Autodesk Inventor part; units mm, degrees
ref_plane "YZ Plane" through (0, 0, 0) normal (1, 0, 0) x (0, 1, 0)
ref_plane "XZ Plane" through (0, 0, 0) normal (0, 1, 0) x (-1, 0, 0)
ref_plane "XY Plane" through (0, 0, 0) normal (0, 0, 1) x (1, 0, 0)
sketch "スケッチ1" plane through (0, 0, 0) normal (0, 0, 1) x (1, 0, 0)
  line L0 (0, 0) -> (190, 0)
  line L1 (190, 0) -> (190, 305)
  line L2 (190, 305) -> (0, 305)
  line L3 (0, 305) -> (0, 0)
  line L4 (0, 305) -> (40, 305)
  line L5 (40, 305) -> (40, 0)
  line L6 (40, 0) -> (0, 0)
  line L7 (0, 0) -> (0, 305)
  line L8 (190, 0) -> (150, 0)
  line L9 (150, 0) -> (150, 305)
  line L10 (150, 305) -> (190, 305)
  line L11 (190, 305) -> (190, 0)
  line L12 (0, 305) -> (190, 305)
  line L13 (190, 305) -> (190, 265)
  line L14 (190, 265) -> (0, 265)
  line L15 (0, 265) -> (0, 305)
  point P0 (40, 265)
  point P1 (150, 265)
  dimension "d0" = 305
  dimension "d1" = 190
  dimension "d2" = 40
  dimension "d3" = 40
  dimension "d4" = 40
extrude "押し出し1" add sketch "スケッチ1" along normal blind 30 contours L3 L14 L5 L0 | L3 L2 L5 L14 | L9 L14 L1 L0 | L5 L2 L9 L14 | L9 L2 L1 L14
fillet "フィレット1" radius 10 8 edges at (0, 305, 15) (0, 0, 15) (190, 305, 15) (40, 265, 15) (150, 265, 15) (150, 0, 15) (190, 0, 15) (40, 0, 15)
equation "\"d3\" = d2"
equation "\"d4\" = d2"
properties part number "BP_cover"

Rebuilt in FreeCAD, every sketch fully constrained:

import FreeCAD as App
import Part
import Sketcher

V = App.Vector


def edges_at(feature, points):
    """Names of the edges that pass closest to the given points."""
    edges = feature.Shape.Edges
    near = lambda p: min(range(len(edges)), key=lambda i: edges[i].distToShape(Part.Vertex(*p))[0])
    return sorted({f"Edge{near(p) + 1}" for p in points})

doc = App.newDocument("Part")
body = doc.addObject("PartDesign::Body", "Body")

# Sketch on XY plane
sketch1 = body.newObject("Sketcher::SketchObject", "Sketch")
sketch1.AttachmentSupport = (doc.getObject("XY_Plane"), [""])
sketch1.MapMode = "FlatFace"
sketch1.addGeometry([
    Part.LineSegment(V(0, 0, 0), V(40, 0, 0)),  # 0
    Part.LineSegment(V(40, 0, 0), V(40, 265, 0)),  # 1
    Part.LineSegment(V(40, 265, 0), V(150, 265, 0)),  # 2
    Part.LineSegment(V(150, 265, 0), V(150, 0, 0)),  # 3
    Part.LineSegment(V(150, 0, 0), V(190, 0, 0)),  # 4
    Part.LineSegment(V(190, 0, 0), V(190, 305, 0)),  # 5
    Part.LineSegment(V(190, 305, 0), V(0, 305, 0)),  # 6
    Part.LineSegment(V(0, 305, 0), V(0, 0, 0)),  # 7
], False)
sketch1.addConstraint([
    Sketcher.Constraint("Coincident", 0, 2, 1, 1),
    Sketcher.Constraint("Coincident", 1, 2, 2, 1),
    Sketcher.Constraint("Coincident", 2, 2, 3, 1),
    Sketcher.Constraint("Coincident", 3, 2, 4, 1),
    Sketcher.Constraint("Coincident", 4, 2, 5, 1),
    Sketcher.Constraint("Coincident", 5, 2, 6, 1),
    Sketcher.Constraint("Coincident", 6, 2, 7, 1),
    Sketcher.Constraint("Coincident", 7, 2, 0, 1),
    Sketcher.Constraint("Horizontal", 0),
    Sketcher.Constraint("Vertical", 1),
    Sketcher.Constraint("Horizontal", 2),
    Sketcher.Constraint("Vertical", 3),
    Sketcher.Constraint("Horizontal", 4),
    Sketcher.Constraint("Vertical", 5),
    Sketcher.Constraint("Horizontal", 6),
    Sketcher.Constraint("Vertical", 7),
    Sketcher.Constraint("Coincident", 7, 2, -1, 1),
    Sketcher.Constraint("PointOnObject", 3, 2, -1),
    Sketcher.Constraint("Equal", 0, 4),
    Sketcher.Constraint("DistanceX", 0, 1, 0, 2, 40.0),
    Sketcher.Constraint("DistanceX", 6, 2, 6, 1, 190.0),
    Sketcher.Constraint("DistanceY", 5, 1, 5, 2, 305.0),
    Sketcher.Constraint("DistanceY", 2, 2, 5, 2, 40.0),
])
pad1 = body.newObject("PartDesign::Pad", "Pad")
pad1.Profile = sketch1
pad1.Length = 30
doc.recompute()

fillet = body.newObject("PartDesign::Fillet", "Fillet")
fillet.Base = (pad1, edges_at(pad1, [
    (0, 305, 15),
    (0, 0, 15),
    (190, 305, 15),
    (40, 265, 15),
    (150, 265, 15),
    (150, 0, 15),
    (190, 0, 15),
    (40, 0, 15),
]))
fillet.Radius = 10

doc.recompute()
